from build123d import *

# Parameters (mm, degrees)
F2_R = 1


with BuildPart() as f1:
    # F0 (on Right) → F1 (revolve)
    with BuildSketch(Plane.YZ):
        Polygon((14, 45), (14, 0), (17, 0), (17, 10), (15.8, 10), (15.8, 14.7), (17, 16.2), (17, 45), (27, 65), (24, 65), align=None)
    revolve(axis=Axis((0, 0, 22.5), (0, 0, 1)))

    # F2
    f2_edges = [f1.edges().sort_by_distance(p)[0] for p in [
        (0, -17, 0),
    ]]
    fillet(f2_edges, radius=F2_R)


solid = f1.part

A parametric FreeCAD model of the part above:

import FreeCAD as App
import Part
import Sketcher


def edges_at(feature, points):
    """Names of the edges that pass closest to the given points."""
    edges = feature.Shape.Edges
    near = lambda p: min(range(len(edges)), key=lambda i: edges[i].distToShape(Part.Vertex(*p))[0])
    return sorted({f"Edge{near(p) + 1}" for p in points})


def add_polygon(sketch, points):
    """Adds a closed chain of lines whose ends are joined by coincident constraints."""
    first, n = sketch.GeometryCount, len(points)
    for a, b in zip(points, points[1:] + points[:1]):
        sketch.addGeometry(Part.LineSegment(App.Vector(*a, 0), App.Vector(*b, 0)), False)
    for i in range(n):
        sketch.addConstraint(Sketcher.Constraint("Coincident", first + i, 2, first + (i + 1) % n, 1))

doc = App.newDocument("Part")
body = doc.addObject("PartDesign::Body", "Body")

sketch1 = body.newObject("Sketcher::SketchObject", "Sketch")
sketch1.AttachmentSupport = (doc.getObject("YZ_Plane"), [""])
sketch1.MapMode = "FlatFace"
add_polygon(sketch1, [(14, 45), (14, 0), (17, 0), (17, 10), (15.8, 10), (15.8, 14.7), (17, 16.2), (17, 45), (27, 65), (24, 65)])
sketch1.addConstraint([
    Sketcher.Constraint("Vertical", 0),
    Sketcher.Constraint("Horizontal", 1),
    Sketcher.Constraint("Vertical", 2),
    Sketcher.Constraint("Horizontal", 3),
    Sketcher.Constraint("Vertical", 4),
    Sketcher.Constraint("Vertical", 6),
    Sketcher.Constraint("Horizontal", 8),
    Sketcher.Constraint("PointOnObject", 0, 2, -1),
    Sketcher.Constraint("Parallel", 7, 9),
    Sketcher.Constraint("Horizontal", 6, 2, 9, 2),
    Sketcher.Constraint("Vertical", 2, 2, 5, 2),
    Sketcher.Constraint("DistanceX", 1, 1, 1, 2, 3.0),
    Sketcher.Constraint("DistanceY", 0, 2, 0, 1, 45.0),
    Sketcher.Constraint("DistanceY", 2, 1, 2, 2, 10.0),
    Sketcher.Constraint("DistanceX", 3, 2, 3, 1, 1.2),
    Sketcher.Constraint("DistanceY", 4, 1, 4, 2, 4.7),
    Sketcher.Constraint("DistanceY", 6, 1, 6, 2, 28.8),
    Sketcher.Constraint("DistanceX", -1, 1, 0, 2, 14.0),
    Sketcher.Constraint("DistanceX", -1, 1, 7, 2, 27.0),
    Sketcher.Constraint("DistanceY", -1, 1, 7, 2, 65.0),
])
revolution = body.newObject("PartDesign::Revolution", "Revolution")
revolution.Profile = sketch1
revolution.ReferenceAxis = (sketch1, ["V_Axis"])
revolution.Angle = 360
doc.recompute()

fillet = body.newObject("PartDesign::Fillet", "Fillet")
fillet.Base = (revolution, edges_at(revolution, [(0, -17, 0)]))
fillet.Radius = 1

doc.recompute()
